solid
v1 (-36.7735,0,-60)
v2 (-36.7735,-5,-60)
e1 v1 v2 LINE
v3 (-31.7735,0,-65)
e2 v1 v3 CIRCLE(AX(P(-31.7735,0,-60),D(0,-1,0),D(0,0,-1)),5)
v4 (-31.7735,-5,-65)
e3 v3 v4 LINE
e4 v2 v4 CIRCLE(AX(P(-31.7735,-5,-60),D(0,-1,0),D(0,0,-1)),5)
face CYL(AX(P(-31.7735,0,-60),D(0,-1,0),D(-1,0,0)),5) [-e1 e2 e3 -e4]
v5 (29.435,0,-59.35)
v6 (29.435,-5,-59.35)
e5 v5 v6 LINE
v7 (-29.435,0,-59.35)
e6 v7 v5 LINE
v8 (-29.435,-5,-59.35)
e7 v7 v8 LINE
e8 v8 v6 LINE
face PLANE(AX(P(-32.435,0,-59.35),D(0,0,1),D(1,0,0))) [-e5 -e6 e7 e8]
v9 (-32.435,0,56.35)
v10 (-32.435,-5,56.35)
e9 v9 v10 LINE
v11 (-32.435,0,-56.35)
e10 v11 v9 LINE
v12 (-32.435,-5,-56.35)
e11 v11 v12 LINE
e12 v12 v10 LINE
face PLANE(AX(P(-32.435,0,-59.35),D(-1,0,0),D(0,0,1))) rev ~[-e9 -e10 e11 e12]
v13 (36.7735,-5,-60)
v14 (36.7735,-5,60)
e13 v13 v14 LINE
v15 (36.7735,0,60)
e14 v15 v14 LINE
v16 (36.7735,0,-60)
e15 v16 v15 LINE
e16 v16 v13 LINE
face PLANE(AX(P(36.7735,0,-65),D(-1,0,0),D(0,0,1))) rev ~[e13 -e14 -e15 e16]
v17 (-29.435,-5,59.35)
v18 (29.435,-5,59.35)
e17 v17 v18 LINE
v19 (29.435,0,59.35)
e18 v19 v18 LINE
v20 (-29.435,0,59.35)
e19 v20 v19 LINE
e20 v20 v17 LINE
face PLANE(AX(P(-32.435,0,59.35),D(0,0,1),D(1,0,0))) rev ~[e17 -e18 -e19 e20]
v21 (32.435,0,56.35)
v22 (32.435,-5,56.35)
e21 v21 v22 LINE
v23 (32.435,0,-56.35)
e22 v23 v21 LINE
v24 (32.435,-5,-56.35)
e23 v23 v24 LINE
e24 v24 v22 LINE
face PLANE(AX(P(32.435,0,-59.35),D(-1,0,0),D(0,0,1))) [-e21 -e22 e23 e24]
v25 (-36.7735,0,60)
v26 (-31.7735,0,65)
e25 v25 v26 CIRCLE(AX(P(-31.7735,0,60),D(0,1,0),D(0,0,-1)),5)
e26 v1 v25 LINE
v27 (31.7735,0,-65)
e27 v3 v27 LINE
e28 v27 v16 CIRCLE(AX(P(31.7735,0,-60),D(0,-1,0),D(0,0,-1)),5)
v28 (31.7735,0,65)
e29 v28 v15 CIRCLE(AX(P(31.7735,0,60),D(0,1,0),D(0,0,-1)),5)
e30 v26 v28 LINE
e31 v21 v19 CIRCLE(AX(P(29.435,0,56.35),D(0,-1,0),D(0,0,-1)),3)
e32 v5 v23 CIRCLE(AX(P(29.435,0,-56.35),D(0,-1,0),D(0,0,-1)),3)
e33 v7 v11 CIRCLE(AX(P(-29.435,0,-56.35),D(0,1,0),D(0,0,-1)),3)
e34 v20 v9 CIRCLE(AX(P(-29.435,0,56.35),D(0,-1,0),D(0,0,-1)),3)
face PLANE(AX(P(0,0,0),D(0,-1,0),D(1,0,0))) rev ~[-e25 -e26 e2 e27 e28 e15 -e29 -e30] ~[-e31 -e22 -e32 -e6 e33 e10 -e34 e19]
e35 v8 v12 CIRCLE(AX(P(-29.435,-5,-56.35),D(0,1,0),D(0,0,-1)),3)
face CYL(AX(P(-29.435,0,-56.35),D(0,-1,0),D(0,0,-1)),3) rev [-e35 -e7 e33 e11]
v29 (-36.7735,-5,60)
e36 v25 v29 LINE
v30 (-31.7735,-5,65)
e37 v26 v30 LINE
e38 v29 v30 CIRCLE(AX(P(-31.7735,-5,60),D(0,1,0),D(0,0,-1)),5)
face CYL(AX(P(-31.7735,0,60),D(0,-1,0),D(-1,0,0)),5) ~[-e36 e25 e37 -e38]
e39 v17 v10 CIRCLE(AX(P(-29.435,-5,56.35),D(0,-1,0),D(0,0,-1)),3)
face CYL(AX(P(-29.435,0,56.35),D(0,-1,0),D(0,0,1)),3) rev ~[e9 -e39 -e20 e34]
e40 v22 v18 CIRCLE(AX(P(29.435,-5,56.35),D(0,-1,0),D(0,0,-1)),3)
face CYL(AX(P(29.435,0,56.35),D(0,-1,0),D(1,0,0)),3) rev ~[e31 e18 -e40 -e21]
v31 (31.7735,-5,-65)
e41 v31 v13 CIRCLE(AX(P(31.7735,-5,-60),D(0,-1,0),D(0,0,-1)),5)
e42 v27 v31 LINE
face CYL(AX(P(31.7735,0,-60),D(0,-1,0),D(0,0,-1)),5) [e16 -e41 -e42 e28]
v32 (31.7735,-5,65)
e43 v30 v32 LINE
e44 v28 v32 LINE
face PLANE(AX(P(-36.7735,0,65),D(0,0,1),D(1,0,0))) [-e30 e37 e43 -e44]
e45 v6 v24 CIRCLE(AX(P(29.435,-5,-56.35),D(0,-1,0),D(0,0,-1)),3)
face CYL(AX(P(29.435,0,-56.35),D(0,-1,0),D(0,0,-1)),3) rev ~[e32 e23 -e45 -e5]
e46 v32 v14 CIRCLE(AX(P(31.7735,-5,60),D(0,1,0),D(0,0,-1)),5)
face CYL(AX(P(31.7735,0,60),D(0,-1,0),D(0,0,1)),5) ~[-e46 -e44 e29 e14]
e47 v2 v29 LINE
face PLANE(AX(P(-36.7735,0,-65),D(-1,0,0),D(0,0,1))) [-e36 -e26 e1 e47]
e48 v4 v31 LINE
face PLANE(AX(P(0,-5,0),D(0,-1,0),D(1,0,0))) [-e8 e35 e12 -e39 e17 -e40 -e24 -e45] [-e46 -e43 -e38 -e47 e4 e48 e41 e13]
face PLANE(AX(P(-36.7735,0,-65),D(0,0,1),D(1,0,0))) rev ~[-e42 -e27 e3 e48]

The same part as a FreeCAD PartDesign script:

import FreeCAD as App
import Part
import Sketcher
from FreeCAD import Vector


def edges_at(feature, points):
    """Names of the edges that pass closest to the given points."""
    edges = feature.Shape.Edges
    near = lambda p: min(range(len(edges)), key=lambda i: edges[i].distToShape(Part.Vertex(*p))[0])
    return sorted({f"Edge{near(p) + 1}" for p in points})


def add_polygon(sketch, points):
    """Adds a closed chain of lines whose ends are joined by coincident constraints."""
    first, n = sketch.GeometryCount, len(points)
    for a, b in zip(points, points[1:] + points[:1]):
        sketch.addGeometry(Part.LineSegment(App.Vector(*a, 0), App.Vector(*b, 0)), False)
    for i in range(n):
        sketch.addConstraint(Sketcher.Constraint("Coincident", first + i, 2, first + (i + 1) % n, 1))

doc = App.newDocument("Part")
body = doc.addObject("PartDesign::Body", "Body")

# Sketch on XZ plane
sketch1 = doc.addObject("Sketcher::SketchObject", "Sketch")
body.addObject(sketch1)
sketch1.AttachmentSupport = (doc.XZ_Plane, [""])
sketch1.MapMode = "FlatFace"
add_polygon(sketch1, [(-37, 65), (-37, -65), (37, -65), (37, 65)])  # lines 0-3
add_polygon(sketch1, [(32, -59), (-32, -59), (-32, 59), (32, 59)])  # lines 4-7
sketch1.addConstraint([
    Sketcher.Constraint("Vertical", 0),
    Sketcher.Constraint("Horizontal", 1),
    Sketcher.Constraint("Vertical", 2),
    Sketcher.Constraint("Horizontal", 3),
    Sketcher.Constraint("Horizontal", 4),
    Sketcher.Constraint("Vertical", 5),
    Sketcher.Constraint("Horizontal", 6),
    Sketcher.Constraint("Vertical", 7),
    Sketcher.Constraint("Symmetric", 0, 2, 2, 2, -1, 1),
    Sketcher.Constraint("Symmetric", 4, 2, 6, 2, -1, 1),
    Sketcher.Constraint("DistanceY", 0, 2, 0, 1, 130.0),
    Sketcher.Constraint("DistanceY", 5, 1, 5, 2, 118.7),
    Sketcher.Constraint("DistanceX", 4, 2, 4, 1, 64.87),
    Sketcher.Constraint("DistanceX", 1, 1, 1, 2, 73.547),
])
pad1 = doc.addObject("PartDesign::Pad", "Pad")
body.addObject(pad1)
pad1.Profile = sketch1
pad1.Length = 5
doc.recompute()

fillet = doc.addObject("PartDesign::Fillet", "Fillet")
body.addObject(fillet)
fillet.Base = (pad1, edges_at(pad1, [
    (-36.773, -2.5, 65),
    (36.773, -2.5, 65),
    (36.773, -2.5, -65),
    (-36.773, -2.5, -65),
]))
fillet.Radius = 5
doc.recompute()

fillet2 = doc.addObject("PartDesign::Fillet", "Fillet001")
body.addObject(fillet2)
fillet2.Base = (fillet, edges_at(fillet, [
    (32.435, -2.5, 59.35),
    (32.435, -2.5, -59.35),
    (-32.435, -2.5, 59.35),
    (-32.435, -2.5, -59.35),
]))
fillet2.Radius = 3

doc.recompute()
